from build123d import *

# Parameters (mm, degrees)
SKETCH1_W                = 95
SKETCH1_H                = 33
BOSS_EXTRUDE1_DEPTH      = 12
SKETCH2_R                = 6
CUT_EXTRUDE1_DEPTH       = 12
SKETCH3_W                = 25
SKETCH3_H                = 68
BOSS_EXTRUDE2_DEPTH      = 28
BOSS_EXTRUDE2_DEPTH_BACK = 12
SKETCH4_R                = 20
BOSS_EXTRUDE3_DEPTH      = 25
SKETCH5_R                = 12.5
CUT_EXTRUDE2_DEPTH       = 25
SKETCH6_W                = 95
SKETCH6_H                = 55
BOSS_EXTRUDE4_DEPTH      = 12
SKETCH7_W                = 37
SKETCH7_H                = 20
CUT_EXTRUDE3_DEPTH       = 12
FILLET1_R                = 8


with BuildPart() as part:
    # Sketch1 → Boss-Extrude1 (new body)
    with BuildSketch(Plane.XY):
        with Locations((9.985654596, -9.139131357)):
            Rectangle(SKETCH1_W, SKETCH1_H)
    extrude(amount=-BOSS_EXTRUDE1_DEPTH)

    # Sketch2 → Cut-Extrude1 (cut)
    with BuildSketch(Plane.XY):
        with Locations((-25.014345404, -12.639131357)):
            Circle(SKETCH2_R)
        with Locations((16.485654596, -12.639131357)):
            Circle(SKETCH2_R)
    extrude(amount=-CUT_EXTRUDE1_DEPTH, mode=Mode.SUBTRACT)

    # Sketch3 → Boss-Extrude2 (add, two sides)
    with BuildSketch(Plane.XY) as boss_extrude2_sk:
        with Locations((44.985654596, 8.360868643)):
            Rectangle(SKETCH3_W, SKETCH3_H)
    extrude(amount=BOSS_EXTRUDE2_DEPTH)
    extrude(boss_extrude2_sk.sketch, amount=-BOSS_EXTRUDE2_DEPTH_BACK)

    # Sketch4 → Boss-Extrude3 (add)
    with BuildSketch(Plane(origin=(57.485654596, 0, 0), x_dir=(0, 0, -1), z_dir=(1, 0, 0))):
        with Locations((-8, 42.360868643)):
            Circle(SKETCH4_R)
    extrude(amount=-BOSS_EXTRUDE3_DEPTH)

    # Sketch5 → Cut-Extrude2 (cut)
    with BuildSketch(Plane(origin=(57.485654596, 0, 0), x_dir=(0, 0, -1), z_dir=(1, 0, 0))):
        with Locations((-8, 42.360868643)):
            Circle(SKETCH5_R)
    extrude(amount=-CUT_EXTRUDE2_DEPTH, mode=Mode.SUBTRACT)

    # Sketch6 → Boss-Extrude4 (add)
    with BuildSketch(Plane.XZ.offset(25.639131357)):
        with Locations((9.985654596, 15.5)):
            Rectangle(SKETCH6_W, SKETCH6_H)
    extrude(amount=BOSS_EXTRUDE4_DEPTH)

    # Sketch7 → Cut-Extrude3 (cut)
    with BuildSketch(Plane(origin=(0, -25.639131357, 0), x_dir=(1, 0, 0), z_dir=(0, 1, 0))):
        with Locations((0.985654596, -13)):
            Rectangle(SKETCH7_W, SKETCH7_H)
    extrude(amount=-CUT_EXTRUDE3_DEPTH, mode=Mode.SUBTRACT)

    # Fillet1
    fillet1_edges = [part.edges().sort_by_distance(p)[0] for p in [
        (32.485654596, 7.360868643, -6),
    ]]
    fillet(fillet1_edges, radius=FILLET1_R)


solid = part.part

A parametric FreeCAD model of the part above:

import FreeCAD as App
import Part
import Sketcher
from FreeCAD import Vector
Q = App.Units.Quantity


def edges_at(feature, points):
    """Names of the edges that pass closest to the given points."""
    edges = feature.Shape.Edges
    near = lambda p: min(range(len(edges)), key=lambda i: edges[i].distToShape(Part.Vertex(*p))[0])
    return sorted({f"Edge{near(p) + 1}" for p in points})


def add_polygon(sketch, points):
    """Adds a closed chain of lines whose ends are joined by coincident constraints."""
    first, n = sketch.GeometryCount, len(points)
    for a, b in zip(points, points[1:] + points[:1]):
        sketch.addGeometry(Part.LineSegment(App.Vector(*a, 0), App.Vector(*b, 0)), False)
    for i in range(n):
        sketch.addConstraint(Sketcher.Constraint("Coincident", first + i, 2, first + (i + 1) % n, 1))

doc = App.newDocument("Part")
params = doc.addObject("Spreadsheet::Sheet", "Params")
for row, (alias, value) in enumerate([
    ("sketch1_width", "95 mm"),
    ("sketch1_height", "33 mm"),
    ("pad1_length", "12 mm"),
    ("sketch2_diameter", "12 mm"),
    ("pocket1_length", "12 mm"),
    ("sketch3_width", "25 mm"),
    ("sketch3_height", "68 mm"),
    ("pad2_length", "28 mm"),
    ("pad2_length2", "12 mm"),
    ("sketch4_diameter", "40 mm"),
    ("pad3_length", "25 mm"),
    ("sketch5_diameter", "25 mm"),
    ("pocket2_length", "25 mm"),
    ("sketch6_width", "95 mm"),
    ("sketch6_height", "55 mm"),
    ("pad4_length", "12 mm"),
    ("sketch7_width", "37 mm"),
    ("sketch7_height", "20 mm"),
    ("pocket3_length", "12 mm"),
    ("fillet_radius", "8 mm"),
], start=1):
    params.set(f"A{row}", alias)
    params.set(f"B{row}", "=" + value)
    params.setAlias(f"B{row}", alias)

body = doc.addObject("PartDesign::Body", "Body")

sketch1 = doc.addObject("Sketcher::SketchObject", "Sketch")
body.addObject(sketch1)
sketch1.AttachmentSupport = (doc.XY_Plane, [""])
sketch1.MapMode = "FlatFace"
add_polygon(sketch1, [(-37.514345, 7.360869), (-37.514345, -25.639131), (57.485655, -25.639131), (57.485655, 7.360869)])
sketch1.addConstraint([
    Sketcher.Constraint("Vertical", 0),
    Sketcher.Constraint("Horizontal", 1),
    Sketcher.Constraint("Vertical", 2),
    Sketcher.Constraint("Horizontal", 3),
    Sketcher.Constraint("DistanceX", 1, 1, 1, 2, Q("95 mm")),
    Sketcher.Constraint("DistanceY", 0, 2, 0, 1, Q("33 mm")),
    Sketcher.Constraint("DistanceY", 0, 2, -1, 1, Q("25.639131 mm")),
    Sketcher.Constraint("DistanceX", 0, 2, -1, 1, Q("37.514345 mm")),
])
sketch1.setExpression("Constraints[8]", "Params.sketch1_width")
sketch1.setExpression("Constraints[9]", "Params.sketch1_height")
pad1 = doc.addObject("PartDesign::Pad", "Pad")
body.addObject(pad1)
pad1.Profile = sketch1
pad1.setExpression("Length", "Params.pad1_length")
pad1.Reversed = True

sketch2 = doc.addObject("Sketcher::SketchObject", "Sketch001")
body.addObject(sketch2)
sketch2.AttachmentSupport = (doc.XY_Plane, [""])
sketch2.MapMode = "FlatFace"
sketch2.addGeometry([
    Part.Circle(Vector(-25.014345, -12.639131, 0), Vector(0, 0, 1), 6),
    Part.Circle(Vector(16.485655, -12.639131, 0), Vector(0, 0, 1), 6),
], False)
sketch2.addConstraint([
    Sketcher.Constraint("Equal", 0, 1),
    Sketcher.Constraint("Horizontal", 0, 3, 1, 3),
    Sketcher.Constraint("Diameter", 0, Q("12 mm")),
    Sketcher.Constraint("DistanceX", 0, 3, 1, 3, Q("41.5 mm")),
    Sketcher.Constraint("DistanceY", 0, 3, -1, 1, Q("12.639131 mm")),
    Sketcher.Constraint("DistanceX", 0, 3, -1, 1, Q("25.014345 mm")),
])
sketch2.setExpression("Constraints[2]", "Params.sketch2_diameter")
pocket1 = doc.addObject("PartDesign::Pocket", "Pocket")
body.addObject(pocket1)
pocket1.Profile = sketch2
pocket1.setExpression("Length", "Params.pocket1_length")

sketch3 = doc.addObject("Sketcher::SketchObject", "Sketch002")
body.addObject(sketch3)
sketch3.AttachmentSupport = (doc.XY_Plane, [""])
sketch3.MapMode = "FlatFace"
add_polygon(sketch3, [(32.485655, 42.360869), (32.485655, -25.639131), (57.485655, -25.639131), (57.485655, 42.360869)])
sketch3.addConstraint([
    Sketcher.Constraint("Vertical", 0),
    Sketcher.Constraint("Horizontal", 1),
    Sketcher.Constraint("Vertical", 2),
    Sketcher.Constraint("Horizontal", 3),
    Sketcher.Constraint("DistanceX", 1, 1, 1, 2, Q("25 mm")),
    Sketcher.Constraint("DistanceY", 0, 2, 0, 1, Q("68 mm")),
    Sketcher.Constraint("DistanceY", 0, 2, -1, 1, Q("25.639131 mm")),
    Sketcher.Constraint("DistanceX", -1, 1, 0, 2, Q("32.485655 mm")),
])
sketch3.setExpression("Constraints[8]", "Params.sketch3_width")
sketch3.setExpression("Constraints[9]", "Params.sketch3_height")
pad2 = doc.addObject("PartDesign::Pad", "Pad001")
body.addObject(pad2)
pad2.Profile = sketch3
pad2.Type = "TwoLengths"
pad2.setExpression("Length", "Params.pad2_length")
pad2.setExpression("Length2", "Params.pad2_length2")

sketch4 = doc.addObject("Sketcher::SketchObject", "Sketch003")
body.addObject(sketch4)
sketch4.AttachmentSupport = (doc.YZ_Plane, [""])
sketch4.MapMode = "FlatFace"
sketch4.AttachmentOffset = App.Placement(Vector(0, 0, 57.485655), App.Rotation())
sketch4.addGeometry(Part.Circle(Vector(42.360869, 8, 0), Vector(0, 0, 1), 20), False)
sketch4.addConstraint([
    Sketcher.Constraint("Diameter", 0, Q("40 mm")),
    Sketcher.Constraint("DistanceY", -1, 1, 0, 3, Q("8 mm")),
    Sketcher.Constraint("DistanceX", -1, 1, 0, 3, Q("42.360869 mm")),
])
sketch4.setExpression("Constraints[0]", "Params.sketch4_diameter")
pad3 = doc.addObject("PartDesign::Pad", "Pad002")
body.addObject(pad3)
pad3.Profile = sketch4
pad3.setExpression("Length", "Params.pad3_length")
pad3.Reversed = True

sketch5 = doc.addObject("Sketcher::SketchObject", "Sketch004")
body.addObject(sketch5)
sketch5.AttachmentSupport = (doc.YZ_Plane, [""])
sketch5.MapMode = "FlatFace"
sketch5.AttachmentOffset = App.Placement(Vector(0, 0, 57.485655), App.Rotation())
sketch5.addGeometry(Part.Circle(Vector(42.360869, 8, 0), Vector(0, 0, 1), 12.5), False)
sketch5.addConstraint([
    Sketcher.Constraint("Diameter", 0, Q("25 mm")),
    Sketcher.Constraint("DistanceY", -1, 1, 0, 3, Q("8 mm")),
    Sketcher.Constraint("DistanceX", -1, 1, 0, 3, Q("42.360869 mm")),
])
sketch5.setExpression("Constraints[0]", "Params.sketch5_diameter")
pocket2 = doc.addObject("PartDesign::Pocket", "Pocket001")
body.addObject(pocket2)
pocket2.Profile = sketch5
pocket2.setExpression("Length", "Params.pocket2_length")

sketch6 = doc.addObject("Sketcher::SketchObject", "Sketch005")
body.addObject(sketch6)
sketch6.AttachmentSupport = (doc.XZ_Plane, [""])
sketch6.MapMode = "FlatFace"
sketch6.AttachmentOffset = App.Placement(Vector(0, 0, 25.639131), App.Rotation())
add_polygon(sketch6, [(-37.514345, 43), (-37.514345, -12), (57.485655, -12), (57.485655, 43)])
sketch6.addConstraint([
    Sketcher.Constraint("Vertical", 0),
    Sketcher.Constraint("Horizontal", 1),
    Sketcher.Constraint("Vertical", 2),
    Sketcher.Constraint("Horizontal", 3),
    Sketcher.Constraint("DistanceX", 1, 1, 1, 2, Q("95 mm")),
    Sketcher.Constraint("DistanceY", 0, 2, 0, 1, Q("55 mm")),
    Sketcher.Constraint("DistanceY", 0, 2, -1, 1, Q("12 mm")),
    Sketcher.Constraint("DistanceX", 0, 2, -1, 1, Q("37.514345 mm")),
])
sketch6.setExpression("Constraints[8]", "Params.sketch6_width")
sketch6.setExpression("Constraints[9]", "Params.sketch6_height")
pad4 = doc.addObject("PartDesign::Pad", "Pad003")
body.addObject(pad4)
pad4.Profile = sketch6
pad4.setExpression("Length", "Params.pad4_length")

sketch7 = doc.addObject("Sketcher::SketchObject", "Sketch006")
body.addObject(sketch7)
sketch7.AttachmentSupport = (doc.XZ_Plane, [""])
sketch7.MapMode = "FlatFace"
sketch7.AttachmentOffset = App.Placement(Vector(0, 0, 25.639131), App.Rotation())
add_polygon(sketch7, [(-17.514345, 3), (-17.514345, 23), (19.485655, 23), (19.485655, 3)])
sketch7.addConstraint([
    Sketcher.Constraint("Vertical", 0),
    Sketcher.Constraint("Horizontal", 1),
    Sketcher.Constraint("Vertical", 2),
    Sketcher.Constraint("Horizontal", 3),
    Sketcher.Constraint("DistanceX", 1, 1, 1, 2, Q("37 mm")),
    Sketcher.Constraint("DistanceY", 0, 1, 0, 2, Q("20 mm")),
    Sketcher.Constraint("DistanceY", -1, 1, 0, 2, Q("23 mm")),
    Sketcher.Constraint("DistanceX", 0, 2, -1, 1, Q("17.514345 mm")),
])
sketch7.setExpression("Constraints[8]", "Params.sketch7_width")
sketch7.setExpression("Constraints[9]", "Params.sketch7_height")
pocket3 = doc.addObject("PartDesign::Pocket", "Pocket002")
body.addObject(pocket3)
pocket3.Profile = sketch7
pocket3.setExpression("Length", "Params.pocket3_length")
pocket3.Reversed = True
doc.recompute()

fillet = doc.addObject("PartDesign::Fillet", "Fillet")
body.addObject(fillet)
fillet.Base = (pocket3, edges_at(pocket3, [(32.486, 7.361, -6)]))
fillet.setExpression("Radius", "Params.fillet_radius")

doc.recompute()
